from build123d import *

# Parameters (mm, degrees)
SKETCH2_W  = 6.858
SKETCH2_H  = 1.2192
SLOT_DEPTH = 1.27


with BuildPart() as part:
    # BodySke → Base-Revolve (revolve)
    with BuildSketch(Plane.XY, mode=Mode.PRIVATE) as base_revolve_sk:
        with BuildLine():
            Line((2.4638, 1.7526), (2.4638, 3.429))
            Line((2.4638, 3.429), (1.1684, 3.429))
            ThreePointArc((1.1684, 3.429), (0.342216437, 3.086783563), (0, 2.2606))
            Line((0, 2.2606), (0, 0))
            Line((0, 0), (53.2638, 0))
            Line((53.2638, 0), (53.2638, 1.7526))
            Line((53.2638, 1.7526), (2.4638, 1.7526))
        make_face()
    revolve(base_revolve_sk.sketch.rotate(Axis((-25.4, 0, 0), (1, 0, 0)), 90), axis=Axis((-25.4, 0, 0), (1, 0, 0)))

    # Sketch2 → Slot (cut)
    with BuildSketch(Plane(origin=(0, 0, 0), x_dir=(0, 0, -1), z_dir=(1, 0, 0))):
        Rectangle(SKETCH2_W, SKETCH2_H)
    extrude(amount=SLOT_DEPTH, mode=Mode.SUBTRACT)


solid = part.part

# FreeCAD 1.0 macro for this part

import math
import FreeCAD as App
import Part
import Sketcher

V = App.Vector
Q = App.Units.Quantity


def add_polygon(sketch, points):
    """Adds a closed chain of lines whose ends are joined by coincident constraints."""
    first, n = sketch.GeometryCount, len(points)
    for a, b in zip(points, points[1:] + points[:1]):
        sketch.addGeometry(Part.LineSegment(App.Vector(*a, 0), App.Vector(*b, 0)), False)
    for i in range(n):
        sketch.addConstraint(Sketcher.Constraint("Coincident", first + i, 2, first + (i + 1) % n, 1))

doc = App.newDocument("Part")
body = doc.addObject("PartDesign::Body", "Body")

# Sketch on XY plane
sketch1 = body.newObject("Sketcher::SketchObject", "Sketch")
sketch1.AttachmentSupport = (doc.getObject("XY_Plane"), [""])
sketch1.MapMode = "FlatFace"
sketch1.addGeometry(Part.LineSegment(V(2.5, 1.8, 0), V(2.5, 3.4, 0)), False)
sketch1.addGeometry(Part.LineSegment(V(2.5, 3.4, 0), V(1.2, 3.4, 0)), False)
sketch1.addGeometry(Part.ArcOfCircle(Part.Circle(V(1.2, 2.3, 0), V(0, 0, 1), 1.2), math.radians(90), math.radians(180)), False)
sketch1.addGeometry(Part.LineSegment(V(0, 2.3, 0), V(0, 0, 0)), False)
sketch1.addGeometry(Part.LineSegment(V(0, 0, 0), V(53.3, 0, 0)), False)
sketch1.addGeometry(Part.LineSegment(V(53.3, 0, 0), V(53.3, 1.8, 0)), False)
sketch1.addGeometry(Part.LineSegment(V(53.3, 1.8, 0), V(2.5, 1.8, 0)), False)
sketch1.addConstraint(Sketcher.Constraint("Coincident", 0, 2, 1, 1))
sketch1.addConstraint(Sketcher.Constraint("Tangent", 1, 2, 2, 1))
sketch1.addConstraint(Sketcher.Constraint("Tangent", 2, 2, 3, 1))
sketch1.addConstraint(Sketcher.Constraint("Coincident", 3, 2, 4, 1))
sketch1.addConstraint(Sketcher.Constraint("Coincident", 4, 2, 5, 1))
sketch1.addConstraint(Sketcher.Constraint("Coincident", 5, 2, 6, 1))
sketch1.addConstraint(Sketcher.Constraint("Coincident", 6, 2, 0, 1))
sketch1.addConstraint(Sketcher.Constraint("Vertical", 0))
sketch1.addConstraint(Sketcher.Constraint("Horizontal", 1))
sketch1.addConstraint(Sketcher.Constraint("Vertical", 3))
sketch1.addConstraint(Sketcher.Constraint("Horizontal", 4))
sketch1.addConstraint(Sketcher.Constraint("Vertical", 5))
sketch1.addConstraint(Sketcher.Constraint("Horizontal", 6))
sketch1.addConstraint(Sketcher.Constraint("Coincident", 3, 2, -1, 1))
sketch1.addConstraint(Sketcher.Constraint("DistanceX", 6, 2, 6, 1, Q("2 in")))
sketch1.addConstraint(Sketcher.Constraint("Radius", 2, Q("0.046 in")))
sketch1.addConstraint(Sketcher.Constraint("DistanceX", 1, 2, 1, 1, Q("0.051 in")))
sketch1.addConstraint(Sketcher.Constraint("DistanceY", 0, 1, 0, 2, Q("0.066 in")))
sketch1.addConstraint(Sketcher.Constraint("DistanceY", 3, 2, 3, 1, Q("0.089 in")))
revolution = body.newObject("PartDesign::Revolution", "Revolution")
revolution.Profile = sketch1
revolution.ReferenceAxis = (sketch1, ["H_Axis"])
revolution.Angle = 360

# Sketch on YZ plane
sketch2 = body.newObject("Sketcher::SketchObject", "Sketch001")
sketch2.AttachmentSupport = (doc.getObject("YZ_Plane"), [""])
sketch2.MapMode = "FlatFace"
add_polygon(sketch2, [(0.6, 3.4), (-0.6, 3.4), (-0.6, -3.4), (0.6, -3.4)])  # lines 0-3
sketch2.addConstraint(Sketcher.Constraint("Horizontal", 0))
sketch2.addConstraint(Sketcher.Constraint("Vertical", 1))
sketch2.addConstraint(Sketcher.Constraint("Horizontal", 2))
sketch2.addConstraint(Sketcher.Constraint("Vertical", 3))
sketch2.addConstraint(Sketcher.Constraint("Symmetric", 0, 2, 2, 2, -1, 1))
sketch2.addConstraint(Sketcher.Constraint("DistanceY", 1, 2, 1, 1, Q("0.27 in")))
sketch2.addConstraint(Sketcher.Constraint("DistanceX", 0, 2, 0, 1, Q("0.048 in")))
pocket1 = body.newObject("PartDesign::Pocket", "Pocket")
pocket1.Profile = sketch2
pocket1.Length = Q("0.05 in")
pocket1.Reversed = True

doc.recompute()
